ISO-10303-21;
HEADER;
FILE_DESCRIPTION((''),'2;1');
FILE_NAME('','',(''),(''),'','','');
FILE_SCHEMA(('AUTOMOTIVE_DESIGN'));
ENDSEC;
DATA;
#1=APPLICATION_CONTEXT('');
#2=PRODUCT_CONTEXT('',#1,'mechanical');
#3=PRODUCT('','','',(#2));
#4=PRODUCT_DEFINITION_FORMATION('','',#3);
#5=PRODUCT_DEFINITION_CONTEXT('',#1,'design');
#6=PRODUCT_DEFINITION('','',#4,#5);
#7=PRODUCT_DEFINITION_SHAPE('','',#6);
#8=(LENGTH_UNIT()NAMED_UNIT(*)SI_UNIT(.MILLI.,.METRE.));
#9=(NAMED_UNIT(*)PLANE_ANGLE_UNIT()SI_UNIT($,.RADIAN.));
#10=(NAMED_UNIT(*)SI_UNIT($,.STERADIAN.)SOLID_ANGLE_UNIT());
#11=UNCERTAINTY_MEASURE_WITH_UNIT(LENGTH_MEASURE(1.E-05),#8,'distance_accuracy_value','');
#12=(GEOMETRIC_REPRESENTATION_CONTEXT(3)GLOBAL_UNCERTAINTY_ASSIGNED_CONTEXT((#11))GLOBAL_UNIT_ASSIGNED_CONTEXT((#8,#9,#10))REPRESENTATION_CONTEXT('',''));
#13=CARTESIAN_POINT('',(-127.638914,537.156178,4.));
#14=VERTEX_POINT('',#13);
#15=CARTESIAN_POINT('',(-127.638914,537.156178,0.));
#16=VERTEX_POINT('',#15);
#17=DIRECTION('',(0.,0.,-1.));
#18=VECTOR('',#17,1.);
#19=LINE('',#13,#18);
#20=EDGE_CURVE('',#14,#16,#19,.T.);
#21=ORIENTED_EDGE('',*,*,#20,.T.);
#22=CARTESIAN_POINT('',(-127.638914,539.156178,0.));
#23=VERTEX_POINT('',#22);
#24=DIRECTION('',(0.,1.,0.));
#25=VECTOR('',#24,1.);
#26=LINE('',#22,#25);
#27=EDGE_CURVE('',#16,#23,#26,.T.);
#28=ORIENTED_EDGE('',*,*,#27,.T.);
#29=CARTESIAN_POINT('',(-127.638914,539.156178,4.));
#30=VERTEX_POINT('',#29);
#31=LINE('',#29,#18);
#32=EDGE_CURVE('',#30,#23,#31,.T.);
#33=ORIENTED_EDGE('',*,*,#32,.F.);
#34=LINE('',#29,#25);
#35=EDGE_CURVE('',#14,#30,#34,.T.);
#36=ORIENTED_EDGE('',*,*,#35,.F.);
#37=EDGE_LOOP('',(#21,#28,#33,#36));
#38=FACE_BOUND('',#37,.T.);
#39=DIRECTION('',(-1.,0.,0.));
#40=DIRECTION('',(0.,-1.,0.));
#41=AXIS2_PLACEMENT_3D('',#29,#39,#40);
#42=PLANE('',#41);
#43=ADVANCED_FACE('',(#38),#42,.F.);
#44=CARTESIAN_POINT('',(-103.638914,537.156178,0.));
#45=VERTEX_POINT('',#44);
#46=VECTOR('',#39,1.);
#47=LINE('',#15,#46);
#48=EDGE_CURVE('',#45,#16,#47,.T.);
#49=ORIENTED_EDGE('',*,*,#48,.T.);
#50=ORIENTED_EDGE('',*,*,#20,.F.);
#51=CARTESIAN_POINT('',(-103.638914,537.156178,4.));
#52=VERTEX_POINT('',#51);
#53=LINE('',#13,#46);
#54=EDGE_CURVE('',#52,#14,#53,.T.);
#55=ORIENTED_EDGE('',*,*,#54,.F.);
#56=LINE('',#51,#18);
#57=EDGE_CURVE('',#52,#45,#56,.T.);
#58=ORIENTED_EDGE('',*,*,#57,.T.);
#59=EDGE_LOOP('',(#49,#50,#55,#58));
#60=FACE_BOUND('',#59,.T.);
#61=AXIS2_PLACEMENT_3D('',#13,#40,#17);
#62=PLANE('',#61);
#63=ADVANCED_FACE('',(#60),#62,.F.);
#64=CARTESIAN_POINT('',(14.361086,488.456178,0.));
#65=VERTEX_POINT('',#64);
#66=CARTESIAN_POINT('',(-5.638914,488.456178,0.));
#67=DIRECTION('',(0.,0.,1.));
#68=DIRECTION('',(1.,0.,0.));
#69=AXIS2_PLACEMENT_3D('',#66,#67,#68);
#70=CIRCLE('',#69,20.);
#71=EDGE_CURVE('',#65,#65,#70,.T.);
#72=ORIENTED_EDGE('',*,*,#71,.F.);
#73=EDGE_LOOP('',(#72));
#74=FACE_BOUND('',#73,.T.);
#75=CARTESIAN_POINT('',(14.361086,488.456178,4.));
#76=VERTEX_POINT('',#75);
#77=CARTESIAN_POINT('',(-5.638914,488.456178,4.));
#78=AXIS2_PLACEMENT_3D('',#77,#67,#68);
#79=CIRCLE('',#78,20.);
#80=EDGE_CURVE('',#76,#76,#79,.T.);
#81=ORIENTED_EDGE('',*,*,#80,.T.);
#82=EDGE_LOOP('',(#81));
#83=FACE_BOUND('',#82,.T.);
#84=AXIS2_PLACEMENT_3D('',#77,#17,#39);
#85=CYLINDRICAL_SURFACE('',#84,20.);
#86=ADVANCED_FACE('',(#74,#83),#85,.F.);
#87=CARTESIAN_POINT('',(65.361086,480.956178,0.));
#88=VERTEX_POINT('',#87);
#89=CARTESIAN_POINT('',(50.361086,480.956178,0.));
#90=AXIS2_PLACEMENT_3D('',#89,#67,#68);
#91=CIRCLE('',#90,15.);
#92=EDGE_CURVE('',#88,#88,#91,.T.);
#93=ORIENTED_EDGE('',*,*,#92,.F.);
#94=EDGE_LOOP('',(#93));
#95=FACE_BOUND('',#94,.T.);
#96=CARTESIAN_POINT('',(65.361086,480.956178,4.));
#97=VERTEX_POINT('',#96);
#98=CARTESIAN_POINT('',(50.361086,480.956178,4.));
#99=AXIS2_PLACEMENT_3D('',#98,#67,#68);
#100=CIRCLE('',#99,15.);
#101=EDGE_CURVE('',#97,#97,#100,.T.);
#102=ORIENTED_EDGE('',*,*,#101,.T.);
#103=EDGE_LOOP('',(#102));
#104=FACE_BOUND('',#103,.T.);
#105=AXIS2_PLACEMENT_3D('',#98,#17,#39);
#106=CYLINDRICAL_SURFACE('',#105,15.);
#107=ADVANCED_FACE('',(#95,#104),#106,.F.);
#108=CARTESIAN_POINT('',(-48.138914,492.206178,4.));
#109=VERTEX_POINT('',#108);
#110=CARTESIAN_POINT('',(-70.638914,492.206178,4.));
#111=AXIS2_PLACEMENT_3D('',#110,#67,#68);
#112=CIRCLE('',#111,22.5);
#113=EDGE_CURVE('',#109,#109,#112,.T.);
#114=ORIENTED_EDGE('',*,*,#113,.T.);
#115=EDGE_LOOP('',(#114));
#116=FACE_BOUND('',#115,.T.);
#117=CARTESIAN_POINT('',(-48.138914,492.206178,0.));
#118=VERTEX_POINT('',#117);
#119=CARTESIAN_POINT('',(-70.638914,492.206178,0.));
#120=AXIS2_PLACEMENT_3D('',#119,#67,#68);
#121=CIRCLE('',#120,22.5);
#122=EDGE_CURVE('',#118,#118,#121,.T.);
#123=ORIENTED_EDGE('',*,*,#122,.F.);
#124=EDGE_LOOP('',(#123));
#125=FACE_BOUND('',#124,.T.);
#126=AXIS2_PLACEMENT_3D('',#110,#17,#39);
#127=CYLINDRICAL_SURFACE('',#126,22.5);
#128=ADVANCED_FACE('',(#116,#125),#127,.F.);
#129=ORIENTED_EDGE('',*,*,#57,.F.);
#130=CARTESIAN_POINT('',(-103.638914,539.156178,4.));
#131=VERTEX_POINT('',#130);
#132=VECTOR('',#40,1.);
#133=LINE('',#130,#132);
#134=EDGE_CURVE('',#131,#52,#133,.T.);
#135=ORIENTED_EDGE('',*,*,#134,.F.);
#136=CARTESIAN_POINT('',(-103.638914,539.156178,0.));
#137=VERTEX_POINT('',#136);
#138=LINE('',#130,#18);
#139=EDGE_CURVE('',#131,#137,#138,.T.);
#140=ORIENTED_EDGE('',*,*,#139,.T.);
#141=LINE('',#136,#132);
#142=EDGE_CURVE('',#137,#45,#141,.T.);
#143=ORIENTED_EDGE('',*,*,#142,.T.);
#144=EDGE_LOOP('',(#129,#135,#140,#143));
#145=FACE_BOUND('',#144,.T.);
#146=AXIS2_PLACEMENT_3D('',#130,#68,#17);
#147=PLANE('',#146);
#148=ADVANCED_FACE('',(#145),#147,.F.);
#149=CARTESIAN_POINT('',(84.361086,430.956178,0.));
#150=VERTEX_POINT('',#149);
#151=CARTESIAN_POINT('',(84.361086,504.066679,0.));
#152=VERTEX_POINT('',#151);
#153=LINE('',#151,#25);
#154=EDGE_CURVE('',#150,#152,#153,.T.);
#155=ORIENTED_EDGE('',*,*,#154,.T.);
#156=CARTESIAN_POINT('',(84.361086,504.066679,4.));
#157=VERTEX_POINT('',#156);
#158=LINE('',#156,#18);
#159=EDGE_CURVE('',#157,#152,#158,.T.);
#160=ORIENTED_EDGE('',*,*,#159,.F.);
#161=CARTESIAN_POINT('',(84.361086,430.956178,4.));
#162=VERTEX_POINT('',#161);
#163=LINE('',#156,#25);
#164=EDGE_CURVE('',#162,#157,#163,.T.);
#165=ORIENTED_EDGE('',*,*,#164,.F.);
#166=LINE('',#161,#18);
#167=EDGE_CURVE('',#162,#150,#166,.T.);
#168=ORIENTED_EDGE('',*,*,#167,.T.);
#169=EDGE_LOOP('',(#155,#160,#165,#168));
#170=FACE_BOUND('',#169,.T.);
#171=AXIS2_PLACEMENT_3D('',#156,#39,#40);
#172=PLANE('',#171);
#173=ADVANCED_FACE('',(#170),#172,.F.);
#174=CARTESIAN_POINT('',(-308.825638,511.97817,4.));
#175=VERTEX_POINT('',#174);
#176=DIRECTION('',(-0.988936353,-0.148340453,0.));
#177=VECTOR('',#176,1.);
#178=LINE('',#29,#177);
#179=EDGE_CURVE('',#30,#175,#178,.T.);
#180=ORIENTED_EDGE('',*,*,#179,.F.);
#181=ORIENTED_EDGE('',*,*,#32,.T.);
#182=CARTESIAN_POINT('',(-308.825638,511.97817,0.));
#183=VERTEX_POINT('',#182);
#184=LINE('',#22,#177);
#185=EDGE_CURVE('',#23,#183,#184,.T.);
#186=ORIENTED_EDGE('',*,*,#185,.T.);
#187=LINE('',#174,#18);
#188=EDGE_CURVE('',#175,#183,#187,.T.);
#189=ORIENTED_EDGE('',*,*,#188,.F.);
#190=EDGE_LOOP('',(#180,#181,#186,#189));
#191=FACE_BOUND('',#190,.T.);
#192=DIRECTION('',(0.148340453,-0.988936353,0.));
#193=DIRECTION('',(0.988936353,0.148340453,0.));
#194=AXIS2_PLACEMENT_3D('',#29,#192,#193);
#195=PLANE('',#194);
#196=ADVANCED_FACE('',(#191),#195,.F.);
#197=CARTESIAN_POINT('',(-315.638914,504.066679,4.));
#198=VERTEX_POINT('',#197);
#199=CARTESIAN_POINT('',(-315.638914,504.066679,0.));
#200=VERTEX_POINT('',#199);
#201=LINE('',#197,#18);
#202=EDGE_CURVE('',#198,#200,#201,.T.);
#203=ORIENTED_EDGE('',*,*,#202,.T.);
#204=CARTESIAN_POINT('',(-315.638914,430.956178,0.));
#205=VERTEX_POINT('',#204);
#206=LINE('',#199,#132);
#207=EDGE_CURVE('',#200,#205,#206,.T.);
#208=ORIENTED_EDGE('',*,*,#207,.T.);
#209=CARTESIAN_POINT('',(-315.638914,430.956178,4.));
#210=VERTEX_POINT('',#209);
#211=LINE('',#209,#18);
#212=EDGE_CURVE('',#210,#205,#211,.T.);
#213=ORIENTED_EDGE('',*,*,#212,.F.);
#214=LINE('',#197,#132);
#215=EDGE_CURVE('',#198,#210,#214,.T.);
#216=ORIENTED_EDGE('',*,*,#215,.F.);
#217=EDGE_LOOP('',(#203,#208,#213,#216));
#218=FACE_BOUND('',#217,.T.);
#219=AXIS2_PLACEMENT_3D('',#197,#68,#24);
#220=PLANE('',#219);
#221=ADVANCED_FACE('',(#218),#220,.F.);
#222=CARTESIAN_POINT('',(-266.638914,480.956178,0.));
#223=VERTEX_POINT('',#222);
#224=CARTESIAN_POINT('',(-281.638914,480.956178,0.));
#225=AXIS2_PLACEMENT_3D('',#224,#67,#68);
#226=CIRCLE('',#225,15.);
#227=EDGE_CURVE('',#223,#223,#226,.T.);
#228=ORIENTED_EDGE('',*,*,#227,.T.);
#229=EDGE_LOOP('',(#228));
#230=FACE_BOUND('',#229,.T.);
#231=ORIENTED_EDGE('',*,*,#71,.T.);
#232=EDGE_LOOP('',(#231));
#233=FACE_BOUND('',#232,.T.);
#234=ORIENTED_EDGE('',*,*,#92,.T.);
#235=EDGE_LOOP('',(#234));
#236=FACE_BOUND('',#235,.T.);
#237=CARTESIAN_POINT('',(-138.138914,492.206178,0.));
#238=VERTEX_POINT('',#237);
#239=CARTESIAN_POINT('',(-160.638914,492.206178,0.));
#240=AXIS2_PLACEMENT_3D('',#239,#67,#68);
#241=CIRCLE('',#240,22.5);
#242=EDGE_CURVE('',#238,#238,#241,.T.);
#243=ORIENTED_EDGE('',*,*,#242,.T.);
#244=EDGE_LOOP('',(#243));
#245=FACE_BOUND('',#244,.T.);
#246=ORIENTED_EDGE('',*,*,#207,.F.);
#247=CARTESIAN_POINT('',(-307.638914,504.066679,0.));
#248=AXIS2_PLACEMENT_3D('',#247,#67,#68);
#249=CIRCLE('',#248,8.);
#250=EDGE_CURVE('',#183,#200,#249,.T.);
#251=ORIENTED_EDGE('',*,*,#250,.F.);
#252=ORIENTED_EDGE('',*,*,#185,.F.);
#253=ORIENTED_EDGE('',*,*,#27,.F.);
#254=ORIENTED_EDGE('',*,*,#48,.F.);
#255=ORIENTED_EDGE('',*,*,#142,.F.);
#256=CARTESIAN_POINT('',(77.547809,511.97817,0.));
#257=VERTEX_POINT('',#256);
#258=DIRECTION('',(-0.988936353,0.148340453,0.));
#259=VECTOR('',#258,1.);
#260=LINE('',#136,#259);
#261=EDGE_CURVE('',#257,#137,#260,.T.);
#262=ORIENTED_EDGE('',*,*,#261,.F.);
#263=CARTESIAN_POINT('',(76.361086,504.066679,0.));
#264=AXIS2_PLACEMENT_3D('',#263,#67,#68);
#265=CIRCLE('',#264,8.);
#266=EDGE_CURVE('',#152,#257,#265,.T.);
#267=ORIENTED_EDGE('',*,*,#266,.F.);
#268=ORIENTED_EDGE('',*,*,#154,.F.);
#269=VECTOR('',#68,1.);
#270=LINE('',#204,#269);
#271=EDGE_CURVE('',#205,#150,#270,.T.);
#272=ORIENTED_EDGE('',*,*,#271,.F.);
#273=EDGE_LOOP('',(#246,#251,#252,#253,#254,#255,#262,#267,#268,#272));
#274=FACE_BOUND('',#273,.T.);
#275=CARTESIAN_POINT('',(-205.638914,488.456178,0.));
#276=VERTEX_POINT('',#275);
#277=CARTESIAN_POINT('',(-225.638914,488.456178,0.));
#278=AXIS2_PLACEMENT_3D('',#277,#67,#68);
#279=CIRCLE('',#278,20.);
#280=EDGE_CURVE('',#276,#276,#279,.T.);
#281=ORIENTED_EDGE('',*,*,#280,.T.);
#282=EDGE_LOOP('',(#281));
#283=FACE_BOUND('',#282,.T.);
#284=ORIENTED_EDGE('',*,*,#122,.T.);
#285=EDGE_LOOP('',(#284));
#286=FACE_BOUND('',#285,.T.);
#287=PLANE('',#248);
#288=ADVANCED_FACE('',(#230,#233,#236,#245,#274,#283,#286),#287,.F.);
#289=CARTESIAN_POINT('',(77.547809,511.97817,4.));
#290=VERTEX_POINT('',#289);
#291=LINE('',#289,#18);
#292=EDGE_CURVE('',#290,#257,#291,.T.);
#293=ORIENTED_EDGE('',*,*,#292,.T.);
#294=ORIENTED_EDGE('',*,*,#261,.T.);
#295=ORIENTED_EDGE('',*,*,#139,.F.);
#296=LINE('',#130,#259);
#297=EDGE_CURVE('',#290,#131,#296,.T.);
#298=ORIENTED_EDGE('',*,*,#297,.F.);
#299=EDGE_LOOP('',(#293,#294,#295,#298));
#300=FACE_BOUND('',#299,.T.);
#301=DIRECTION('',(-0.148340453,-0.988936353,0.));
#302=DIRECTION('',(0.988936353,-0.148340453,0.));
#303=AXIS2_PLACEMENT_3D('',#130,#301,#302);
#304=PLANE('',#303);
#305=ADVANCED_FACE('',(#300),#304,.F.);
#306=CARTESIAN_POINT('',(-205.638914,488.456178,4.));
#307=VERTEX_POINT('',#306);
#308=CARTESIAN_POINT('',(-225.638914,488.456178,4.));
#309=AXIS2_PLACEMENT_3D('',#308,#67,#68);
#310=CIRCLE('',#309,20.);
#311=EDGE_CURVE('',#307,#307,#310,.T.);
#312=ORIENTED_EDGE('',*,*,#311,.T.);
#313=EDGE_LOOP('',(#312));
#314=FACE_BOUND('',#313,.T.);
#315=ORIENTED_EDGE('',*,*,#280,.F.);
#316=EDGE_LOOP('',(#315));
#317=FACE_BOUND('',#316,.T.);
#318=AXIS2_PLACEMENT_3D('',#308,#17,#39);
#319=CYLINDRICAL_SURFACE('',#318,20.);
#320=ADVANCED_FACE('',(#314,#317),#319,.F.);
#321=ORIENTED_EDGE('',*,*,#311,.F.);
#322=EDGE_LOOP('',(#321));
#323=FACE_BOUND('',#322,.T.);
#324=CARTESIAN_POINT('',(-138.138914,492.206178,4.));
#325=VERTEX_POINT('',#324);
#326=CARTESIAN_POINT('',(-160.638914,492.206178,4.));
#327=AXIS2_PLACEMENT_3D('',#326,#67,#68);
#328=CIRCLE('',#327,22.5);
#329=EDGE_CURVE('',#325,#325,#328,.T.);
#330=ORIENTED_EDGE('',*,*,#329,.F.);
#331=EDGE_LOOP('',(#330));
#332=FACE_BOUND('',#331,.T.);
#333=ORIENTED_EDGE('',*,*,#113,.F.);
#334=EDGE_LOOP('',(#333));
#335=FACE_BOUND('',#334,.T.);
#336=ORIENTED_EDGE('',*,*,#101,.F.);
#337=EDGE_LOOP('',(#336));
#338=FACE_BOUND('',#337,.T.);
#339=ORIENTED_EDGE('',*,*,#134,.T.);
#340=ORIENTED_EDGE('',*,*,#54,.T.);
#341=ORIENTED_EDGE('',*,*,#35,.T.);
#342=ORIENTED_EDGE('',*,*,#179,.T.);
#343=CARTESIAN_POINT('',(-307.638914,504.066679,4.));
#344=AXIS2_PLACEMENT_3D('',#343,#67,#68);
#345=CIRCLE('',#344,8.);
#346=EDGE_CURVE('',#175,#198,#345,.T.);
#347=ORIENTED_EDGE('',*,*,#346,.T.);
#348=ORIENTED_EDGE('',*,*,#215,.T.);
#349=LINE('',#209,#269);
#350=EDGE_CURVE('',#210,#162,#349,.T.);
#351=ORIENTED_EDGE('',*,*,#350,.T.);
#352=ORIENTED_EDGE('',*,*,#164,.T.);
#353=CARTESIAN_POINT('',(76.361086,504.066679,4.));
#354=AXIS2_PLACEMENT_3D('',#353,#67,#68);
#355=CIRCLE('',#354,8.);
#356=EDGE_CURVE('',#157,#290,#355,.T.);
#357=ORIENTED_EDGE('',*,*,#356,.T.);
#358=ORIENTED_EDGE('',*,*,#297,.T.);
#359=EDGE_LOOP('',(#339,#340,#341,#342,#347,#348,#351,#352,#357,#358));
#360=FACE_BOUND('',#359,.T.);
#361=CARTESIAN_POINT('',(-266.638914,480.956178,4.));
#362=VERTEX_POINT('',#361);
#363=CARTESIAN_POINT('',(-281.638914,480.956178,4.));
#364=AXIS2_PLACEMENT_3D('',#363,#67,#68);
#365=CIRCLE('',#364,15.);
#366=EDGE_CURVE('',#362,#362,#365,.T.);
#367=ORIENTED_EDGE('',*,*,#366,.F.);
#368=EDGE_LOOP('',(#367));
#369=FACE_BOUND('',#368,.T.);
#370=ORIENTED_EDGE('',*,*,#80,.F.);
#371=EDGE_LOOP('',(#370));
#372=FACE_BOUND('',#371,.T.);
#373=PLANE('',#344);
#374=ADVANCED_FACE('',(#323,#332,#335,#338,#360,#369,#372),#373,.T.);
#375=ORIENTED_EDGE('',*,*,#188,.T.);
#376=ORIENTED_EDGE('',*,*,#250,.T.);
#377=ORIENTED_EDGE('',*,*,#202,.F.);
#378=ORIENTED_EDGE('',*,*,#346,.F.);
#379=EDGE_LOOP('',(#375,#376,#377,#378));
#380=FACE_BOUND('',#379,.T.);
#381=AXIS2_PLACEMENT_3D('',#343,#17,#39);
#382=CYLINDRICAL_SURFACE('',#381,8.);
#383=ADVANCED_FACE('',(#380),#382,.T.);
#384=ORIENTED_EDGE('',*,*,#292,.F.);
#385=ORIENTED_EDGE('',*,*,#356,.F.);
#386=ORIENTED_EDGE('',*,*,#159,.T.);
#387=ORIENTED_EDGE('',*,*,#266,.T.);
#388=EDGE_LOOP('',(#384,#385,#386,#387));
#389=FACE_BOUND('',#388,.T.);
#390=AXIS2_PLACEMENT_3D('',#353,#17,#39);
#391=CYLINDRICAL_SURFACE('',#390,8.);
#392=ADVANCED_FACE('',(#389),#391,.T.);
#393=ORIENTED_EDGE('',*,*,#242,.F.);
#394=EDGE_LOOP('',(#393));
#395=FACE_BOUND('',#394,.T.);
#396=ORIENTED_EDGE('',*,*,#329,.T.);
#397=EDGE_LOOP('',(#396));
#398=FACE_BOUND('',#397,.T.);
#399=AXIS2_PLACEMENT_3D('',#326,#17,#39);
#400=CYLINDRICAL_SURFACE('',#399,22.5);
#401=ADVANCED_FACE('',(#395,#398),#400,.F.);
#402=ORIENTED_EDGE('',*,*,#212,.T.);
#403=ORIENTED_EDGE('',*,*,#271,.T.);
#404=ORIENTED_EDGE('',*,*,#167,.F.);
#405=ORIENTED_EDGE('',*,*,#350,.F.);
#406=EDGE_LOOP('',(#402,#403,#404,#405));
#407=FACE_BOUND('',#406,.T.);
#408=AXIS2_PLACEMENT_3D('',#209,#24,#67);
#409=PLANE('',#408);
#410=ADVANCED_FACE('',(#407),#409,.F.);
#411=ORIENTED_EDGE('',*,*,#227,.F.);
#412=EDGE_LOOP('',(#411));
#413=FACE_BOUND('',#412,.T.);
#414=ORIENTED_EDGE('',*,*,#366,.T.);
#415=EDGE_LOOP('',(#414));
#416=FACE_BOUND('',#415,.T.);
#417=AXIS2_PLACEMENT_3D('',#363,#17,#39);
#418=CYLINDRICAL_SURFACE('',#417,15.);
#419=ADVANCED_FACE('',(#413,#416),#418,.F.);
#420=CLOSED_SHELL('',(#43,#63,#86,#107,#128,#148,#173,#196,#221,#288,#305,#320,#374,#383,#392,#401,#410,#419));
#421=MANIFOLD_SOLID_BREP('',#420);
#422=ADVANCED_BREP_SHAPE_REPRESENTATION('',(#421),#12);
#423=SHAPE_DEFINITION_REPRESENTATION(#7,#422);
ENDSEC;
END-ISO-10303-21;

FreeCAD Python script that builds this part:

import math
import FreeCAD as App
import Part
import Sketcher

V = App.Vector
Q = App.Units.Quantity

doc = App.newDocument("Part")
body = doc.addObject("PartDesign::Body", "Body")

# Sketch on XY plane
sketch1 = body.newObject("Sketcher::SketchObject", "Sketch")
sketch1.AttachmentSupport = (doc.getObject("XY_Plane"), [""])
sketch1.MapMode = "FlatFace"
sketch1.addGeometry([
    Part.LineSegment(V(-315.6, 504.1, 0), V(-315.6, 431, 0)),  # 0
    Part.LineSegment(V(-315.6, 431, 0), V(84.4, 431, 0)),  # 1
    Part.LineSegment(V(84.4, 431, 0), V(84.4, 504.1, 0)),  # 2
    Part.ArcOfCircle(Part.Circle(V(76.4, 504.1, 0), V(0, 0, 1), 8), math.radians(0), math.radians(81)),  # 3
    Part.LineSegment(V(77.5, 512, 0), V(-103.6, 539.2, 0)),  # 4
    Part.LineSegment(V(-103.6, 539.2, 0), V(-103.6, 537.2, 0)),  # 5
    Part.LineSegment(V(-103.6, 537.2, 0), V(-127.6, 537.2, 0)),  # 6
    Part.LineSegment(V(-127.6, 537.2, 0), V(-127.6, 539.2, 0)),  # 7
    Part.LineSegment(V(-127.6, 539.2, 0), V(-308.8, 512, 0)),  # 8
    Part.ArcOfCircle(Part.Circle(V(-307.6, 504.1, 0), V(0, 0, 1), 8), math.radians(99), math.radians(180)),  # 9
    Part.Circle(V(-281.6, 481, 0), V(0, 0, 1), 15),  # 10
    Part.Circle(V(-225.6, 488.5, 0), V(0, 0, 1), 20),  # 11
    Part.Circle(V(50.4, 481, 0), V(0, 0, 1), 15),  # 12
    Part.Circle(V(-5.6, 488.5, 0), V(0, 0, 1), 20),  # 13
    Part.Circle(V(-160.6, 492.2, 0), V(0, 0, 1), 22.5),  # 14
    Part.Circle(V(-70.6, 492.2, 0), V(0, 0, 1), 22.5),  # 15
], False)
sketch1.addConstraint([
    Sketcher.Constraint("Coincident", 0, 2, 1, 1),
    Sketcher.Constraint("Coincident", 1, 2, 2, 1),
    Sketcher.Constraint("Tangent", 2, 2, 3, 1),
    Sketcher.Constraint("Tangent", 3, 2, 4, 1),
    Sketcher.Constraint("Coincident", 4, 2, 5, 1),
    Sketcher.Constraint("Coincident", 5, 2, 6, 1),
    Sketcher.Constraint("Coincident", 6, 2, 7, 1),
    Sketcher.Constraint("Coincident", 7, 2, 8, 1),
    Sketcher.Constraint("Tangent", 8, 2, 9, 1),
    Sketcher.Constraint("Tangent", 9, 2, 0, 1),
    Sketcher.Constraint("Vertical", 0),
    Sketcher.Constraint("Horizontal", 1),
    Sketcher.Constraint("Vertical", 2),
    Sketcher.Constraint("Vertical", 5),
    Sketcher.Constraint("Horizontal", 6),
    Sketcher.Constraint("Vertical", 7),
    Sketcher.Constraint("Equal", 3, 9),
    Sketcher.Constraint("Equal", 10, 12),
    Sketcher.Constraint("Equal", 11, 13),
    Sketcher.Constraint("Equal", 14, 15),
    Sketcher.Constraint("Horizontal", 3, 3, 9, 3),
    Sketcher.Constraint("Horizontal", 10, 3, 12, 3),
    Sketcher.Constraint("Horizontal", 11, 3, 13, 3),
    Sketcher.Constraint("Horizontal", 14, 3, 15, 3),
    Sketcher.Constraint("Horizontal", 4, 2, 7, 2),
    Sketcher.Constraint("Equal", 4, 8),
    Sketcher.Constraint("Diameter", 10, Q("30 mm")),
    Sketcher.Constraint("Diameter", 11, Q("40 mm")),
    Sketcher.Constraint("Diameter", 14, Q("45 mm")),
    Sketcher.Constraint("Radius", 3, Q("8 mm")),
    Sketcher.Constraint("DistanceX", 1, 1, 1, 2, Q("400 mm")),
    Sketcher.Constraint("DistanceX", 6, 2, 6, 1, Q("24 mm")),
    Sketcher.Constraint("DistanceY", 5, 2, 5, 1, Q("2 mm")),
    Sketcher.Constraint("DistanceX", 9, 3, 10, 3, Q("26 mm")),
    Sketcher.Constraint("DistanceX", 10, 3, 11, 3, Q("56 mm")),
    Sketcher.Constraint("DistanceX", 12, 3, 3, 3, Q("26 mm")),
    Sketcher.Constraint("DistanceX", 13, 3, 12, 3, Q("56 mm")),
    Sketcher.Constraint("DistanceX", 11, 3, 14, 3, Q("65 mm")),
    Sketcher.Constraint("DistanceX", 15, 3, 13, 3, Q("65 mm")),
    Sketcher.Constraint("DistanceY", 0, 2, 10, 3, Q("50 mm")),
    Sketcher.Constraint("DistanceY", 10, 3, 11, 3, Q("7.5 mm")),
    Sketcher.Constraint("DistanceY", 13, 3, 4, 2, Q("50.7 mm")),
    Sketcher.Constraint("DistanceY", 11, 3, 14, 3, Q("3.75 mm")),
    Sketcher.Constraint("DistanceY", 0, 2, 0, 1, Q("73.110501 mm")),
    Sketcher.Constraint("DistanceY", -1, 1, 3, 3, Q("504.066679 mm")),
    Sketcher.Constraint("DistanceX", -1, 1, 3, 2, Q("77.547809 mm")),
])
pad1 = body.newObject("PartDesign::Pad", "Pad")
pad1.Profile = sketch1
pad1.Length = 4

doc.recompute()
